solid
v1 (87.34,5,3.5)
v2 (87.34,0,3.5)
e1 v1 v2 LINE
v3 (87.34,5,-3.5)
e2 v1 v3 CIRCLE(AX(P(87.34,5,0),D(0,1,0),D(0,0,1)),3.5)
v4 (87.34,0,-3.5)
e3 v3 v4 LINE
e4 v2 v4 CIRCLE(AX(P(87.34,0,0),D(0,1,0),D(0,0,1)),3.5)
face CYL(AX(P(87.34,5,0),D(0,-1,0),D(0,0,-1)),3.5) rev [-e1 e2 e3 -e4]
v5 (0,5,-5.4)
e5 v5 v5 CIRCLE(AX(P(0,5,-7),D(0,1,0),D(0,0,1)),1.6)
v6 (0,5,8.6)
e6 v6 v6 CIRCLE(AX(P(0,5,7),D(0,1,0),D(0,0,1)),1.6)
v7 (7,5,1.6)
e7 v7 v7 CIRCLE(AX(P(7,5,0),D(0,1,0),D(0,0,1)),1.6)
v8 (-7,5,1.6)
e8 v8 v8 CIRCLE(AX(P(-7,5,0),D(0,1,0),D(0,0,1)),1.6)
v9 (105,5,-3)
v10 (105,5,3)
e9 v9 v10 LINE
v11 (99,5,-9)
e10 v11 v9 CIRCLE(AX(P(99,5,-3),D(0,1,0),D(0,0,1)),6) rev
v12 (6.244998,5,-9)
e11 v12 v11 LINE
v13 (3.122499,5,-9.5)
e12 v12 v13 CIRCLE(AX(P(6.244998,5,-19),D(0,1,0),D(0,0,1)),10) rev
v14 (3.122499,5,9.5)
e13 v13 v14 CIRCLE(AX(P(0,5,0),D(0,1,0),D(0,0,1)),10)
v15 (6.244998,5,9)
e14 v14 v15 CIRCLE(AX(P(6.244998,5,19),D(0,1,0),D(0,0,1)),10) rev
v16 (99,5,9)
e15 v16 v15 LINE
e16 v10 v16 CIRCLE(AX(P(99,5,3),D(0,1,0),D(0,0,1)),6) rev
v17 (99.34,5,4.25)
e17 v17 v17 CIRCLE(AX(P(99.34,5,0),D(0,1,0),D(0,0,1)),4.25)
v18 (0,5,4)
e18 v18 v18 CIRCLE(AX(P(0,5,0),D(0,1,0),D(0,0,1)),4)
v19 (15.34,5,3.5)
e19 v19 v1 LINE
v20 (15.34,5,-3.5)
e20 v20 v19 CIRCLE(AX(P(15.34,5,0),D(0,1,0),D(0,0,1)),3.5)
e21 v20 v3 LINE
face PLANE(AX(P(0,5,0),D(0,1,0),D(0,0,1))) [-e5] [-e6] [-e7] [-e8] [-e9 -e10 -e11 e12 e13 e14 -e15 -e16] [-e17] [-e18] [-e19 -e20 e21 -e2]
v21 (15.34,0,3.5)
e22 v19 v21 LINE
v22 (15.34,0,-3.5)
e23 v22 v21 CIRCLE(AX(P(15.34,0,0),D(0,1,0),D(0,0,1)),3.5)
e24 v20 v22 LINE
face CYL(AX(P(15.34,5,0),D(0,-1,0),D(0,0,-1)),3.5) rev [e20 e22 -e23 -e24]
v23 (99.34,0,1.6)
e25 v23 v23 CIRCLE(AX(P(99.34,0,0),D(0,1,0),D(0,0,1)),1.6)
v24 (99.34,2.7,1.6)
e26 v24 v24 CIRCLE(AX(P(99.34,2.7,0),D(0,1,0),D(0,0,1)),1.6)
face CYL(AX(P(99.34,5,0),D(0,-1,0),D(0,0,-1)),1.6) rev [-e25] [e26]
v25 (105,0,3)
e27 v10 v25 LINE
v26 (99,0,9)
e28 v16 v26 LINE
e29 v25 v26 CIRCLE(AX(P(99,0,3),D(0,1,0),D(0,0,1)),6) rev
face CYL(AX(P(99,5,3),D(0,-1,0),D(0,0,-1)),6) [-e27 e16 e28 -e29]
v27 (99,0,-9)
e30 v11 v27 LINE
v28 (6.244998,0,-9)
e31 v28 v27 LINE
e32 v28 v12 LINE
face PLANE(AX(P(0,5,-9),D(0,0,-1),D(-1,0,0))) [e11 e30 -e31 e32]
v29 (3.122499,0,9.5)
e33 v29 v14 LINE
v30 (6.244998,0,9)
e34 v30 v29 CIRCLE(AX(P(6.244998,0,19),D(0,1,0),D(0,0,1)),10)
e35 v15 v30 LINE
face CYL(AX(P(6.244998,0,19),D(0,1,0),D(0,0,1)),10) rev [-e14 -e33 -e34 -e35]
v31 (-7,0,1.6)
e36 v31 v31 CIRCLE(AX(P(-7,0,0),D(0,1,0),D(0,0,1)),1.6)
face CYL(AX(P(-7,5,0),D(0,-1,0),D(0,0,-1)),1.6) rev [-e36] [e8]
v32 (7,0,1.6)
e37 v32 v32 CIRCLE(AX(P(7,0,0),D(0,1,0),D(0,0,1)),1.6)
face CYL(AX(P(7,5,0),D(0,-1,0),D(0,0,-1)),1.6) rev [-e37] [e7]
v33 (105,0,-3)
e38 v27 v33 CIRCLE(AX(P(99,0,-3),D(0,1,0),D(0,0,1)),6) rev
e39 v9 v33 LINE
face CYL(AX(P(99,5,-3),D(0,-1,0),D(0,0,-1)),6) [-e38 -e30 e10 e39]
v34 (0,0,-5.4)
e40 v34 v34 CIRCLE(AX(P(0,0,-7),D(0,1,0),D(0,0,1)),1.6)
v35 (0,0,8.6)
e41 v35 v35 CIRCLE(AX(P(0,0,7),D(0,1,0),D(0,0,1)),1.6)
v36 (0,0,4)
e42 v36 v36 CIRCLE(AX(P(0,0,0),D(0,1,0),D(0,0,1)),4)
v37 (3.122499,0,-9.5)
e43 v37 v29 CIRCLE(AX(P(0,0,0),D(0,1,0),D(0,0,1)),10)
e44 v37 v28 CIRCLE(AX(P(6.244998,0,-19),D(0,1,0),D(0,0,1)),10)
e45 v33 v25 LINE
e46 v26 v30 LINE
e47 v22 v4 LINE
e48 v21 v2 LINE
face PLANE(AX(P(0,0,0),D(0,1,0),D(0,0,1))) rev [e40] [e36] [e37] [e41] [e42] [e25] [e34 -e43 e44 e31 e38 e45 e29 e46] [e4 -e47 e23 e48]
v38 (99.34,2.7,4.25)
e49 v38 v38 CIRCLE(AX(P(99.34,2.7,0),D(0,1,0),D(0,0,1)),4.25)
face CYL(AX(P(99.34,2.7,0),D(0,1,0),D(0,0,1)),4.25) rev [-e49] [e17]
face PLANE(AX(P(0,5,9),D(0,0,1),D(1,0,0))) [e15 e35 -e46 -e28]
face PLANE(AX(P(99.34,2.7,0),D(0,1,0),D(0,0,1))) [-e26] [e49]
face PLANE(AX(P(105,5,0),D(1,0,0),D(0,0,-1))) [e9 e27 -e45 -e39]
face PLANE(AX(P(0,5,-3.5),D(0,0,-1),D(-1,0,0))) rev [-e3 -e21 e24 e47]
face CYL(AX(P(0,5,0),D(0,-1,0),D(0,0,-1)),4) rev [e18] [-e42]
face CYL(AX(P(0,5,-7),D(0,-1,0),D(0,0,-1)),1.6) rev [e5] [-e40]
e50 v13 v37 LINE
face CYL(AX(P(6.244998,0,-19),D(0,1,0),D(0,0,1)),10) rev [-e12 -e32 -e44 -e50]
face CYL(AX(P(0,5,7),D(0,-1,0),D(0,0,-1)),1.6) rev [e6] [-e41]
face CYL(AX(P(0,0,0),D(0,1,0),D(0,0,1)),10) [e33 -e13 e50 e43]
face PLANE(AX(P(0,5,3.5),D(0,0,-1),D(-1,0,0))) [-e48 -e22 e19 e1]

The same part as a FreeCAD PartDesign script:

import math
import FreeCAD as App
import Part
import Sketcher

V = App.Vector


def edges_at(feature, points):
    """Names of the edges that pass closest to the given points."""
    edges = feature.Shape.Edges
    near = lambda p: min(range(len(edges)), key=lambda i: edges[i].distToShape(Part.Vertex(*p))[0])
    return sorted({f"Edge{near(p) + 1}" for p in points})

doc = App.newDocument("Part")
body = doc.addObject("PartDesign::Body", "Body")

# Sketch on XZ plane
sketch1 = doc.addObject("Sketcher::SketchObject", "Sketch")
body.addObject(sketch1)
sketch1.AttachmentSupport = (doc.XZ_Plane, [""])
sketch1.MapMode = "FlatFace"
sketch1.addGeometry([
    Part.LineSegment(V(99, -9, 0), V(0, -9, 0)),  # 0
    Part.ArcOfCircle(Part.Circle(V(0, 0, 0), V(0, 0, 1), 9), math.radians(90), math.radians(270)),  # 1
    Part.LineSegment(V(0, 9, 0), V(99, 9, 0)),  # 2
    Part.ArcOfCircle(Part.Circle(V(99, 3, 0), V(0, 0, 1), 6), math.radians(0), math.radians(90)),  # 3
    Part.LineSegment(V(105, 3, 0), V(105, -3, 0)),  # 4
    Part.ArcOfCircle(Part.Circle(V(99, -3, 0), V(0, 0, 1), 6), math.radians(-90), math.radians(0)),  # 5
    Part.LineSegment(V(87.34, 3.5, 0), V(15.34, 3.5, 0)),  # 6
    Part.ArcOfCircle(Part.Circle(V(15.34, 0, 0), V(0, 0, 1), 3.5), math.radians(90), math.radians(270)),  # 7
    Part.LineSegment(V(15.34, -3.5, 0), V(87.34, -3.5, 0)),  # 8
    Part.ArcOfCircle(Part.Circle(V(87.34, 0, 0), V(0, 0, 1), 3.5), math.radians(-90), math.radians(90)),  # 9
    Part.Circle(V(99.34, 0, 0), V(0, 0, 1), 1.6),  # 10
    Part.Circle(V(0, -7, 0), V(0, 0, 1), 1.6),  # 11
    Part.Circle(V(7, 0, 0), V(0, 0, 1), 1.6),  # 12
    Part.Circle(V(0, 7, 0), V(0, 0, 1), 1.6),  # 13
    Part.Circle(V(-7, 0, 0), V(0, 0, 1), 1.6),  # 14
    Part.Circle(V(0, 0, 0), V(0, 0, 1), 4),  # 15
], False)
sketch1.addConstraint([
    Sketcher.Constraint("Tangent", 0, 2, 1, 2),
    Sketcher.Constraint("Tangent", 1, 1, 2, 1),
    Sketcher.Constraint("Tangent", 2, 2, 3, 2),
    Sketcher.Constraint("Tangent", 3, 1, 4, 1),
    Sketcher.Constraint("Tangent", 4, 2, 5, 2),
    Sketcher.Constraint("Tangent", 5, 1, 0, 1),
    Sketcher.Constraint("Tangent", 6, 2, 7, 1),
    Sketcher.Constraint("Tangent", 7, 2, 8, 1),
    Sketcher.Constraint("Tangent", 8, 2, 9, 1),
    Sketcher.Constraint("Tangent", 9, 2, 6, 1),
    Sketcher.Constraint("Horizontal", 0),
    Sketcher.Constraint("Horizontal", 2),
    Sketcher.Constraint("Vertical", 4),
    Sketcher.Constraint("Horizontal", 6),
    Sketcher.Constraint("Horizontal", 8),
    Sketcher.Constraint("Coincident", 1, 3, -1, 1),
    Sketcher.Constraint("Coincident", 15, 3, -1, 1),
    Sketcher.Constraint("Equal", 3, 5),
    Sketcher.Constraint("Equal", 10, 11),
    Sketcher.Constraint("Equal", 11, 12),
    Sketcher.Constraint("Equal", 12, 13),
    Sketcher.Constraint("Equal", 13, 14),
    Sketcher.Constraint("Symmetric", 11, 3, 13, 3, -1, 1),
    Sketcher.Constraint("Symmetric", 12, 3, 14, 3, -1, 1),
    Sketcher.Constraint("PointOnObject", 7, 3, -1),
    Sketcher.Constraint("PointOnObject", 10, 3, -1),
    Sketcher.Constraint("PointOnObject", 11, 3, -2),
    Sketcher.Constraint("PointOnObject", 12, 3, -1),
    Sketcher.Constraint("Diameter", 15, 8.0),
    Sketcher.Constraint("Radius", 1, 9.0),
    Sketcher.Constraint("Radius", 3, 6.0),
    Sketcher.Constraint("Diameter", 10, 3.2),
    Sketcher.Constraint("Radius", 7, 3.5),
    Sketcher.Constraint("DistanceX", 0, 2, 0, 1, 99.0),
    Sketcher.Constraint("DistanceX", 6, 2, 6, 1, 72.0),
    Sketcher.Constraint("DistanceY", 11, 3, -1, 1, 7.0),
    Sketcher.Constraint("DistanceX", -1, 1, 12, 3, 7.0),
    Sketcher.Constraint("DistanceX", 9, 3, 10, 3, 12.0),
    Sketcher.Constraint("DistanceX", -1, 1, 7, 3, 15.34),
])
pad1 = doc.addObject("PartDesign::Pad", "Pad")
body.addObject(pad1)
pad1.Profile = sketch1
pad1.Length = 5
pad1.Reversed = True

# Sketch on XZ plane
sketch2 = doc.addObject("Sketcher::SketchObject", "Sketch001")
body.addObject(sketch2)
sketch2.AttachmentSupport = (doc.XZ_Plane, [""])
sketch2.MapMode = "FlatFace"
sketch2.AttachmentOffset = App.Placement(V(0, 0, -5), App.Rotation())
sketch2.addGeometry(Part.Circle(V(99.34, 0, 0), V(0, 0, 1), 4.25), False)
sketch2.addConstraint([
    Sketcher.Constraint("PointOnObject", 0, 3, -1),
    Sketcher.Constraint("Diameter", 0, 8.5),
    Sketcher.Constraint("DistanceX", -1, 1, 0, 3, 99.34),
])
pocket1 = doc.addObject("PartDesign::Pocket", "Pocket")
body.addObject(pocket1)
pocket1.Profile = sketch2
pocket1.Length = 2.3
pocket1.Reversed = True

# Sketch on XZ plane
sketch3 = doc.addObject("Sketcher::SketchObject", "Sketch002")
body.addObject(sketch3)
sketch3.AttachmentSupport = (doc.XZ_Plane, [""])
sketch3.MapMode = "FlatFace"
sketch3.addGeometry([
    Part.Circle(V(0, 0, 0), V(0, 0, 1), 10),
    Part.Circle(V(0, 0, 0), V(0, 0, 1), 9),
], False)
sketch3.addConstraint([
    Sketcher.Constraint("Coincident", 0, 3, -1, 1),
    Sketcher.Constraint("Coincident", 1, 3, -1, 1),
    Sketcher.Constraint("Diameter", 0, 20.0),
    Sketcher.Constraint("Diameter", 1, 18.0),
])
pad2 = doc.addObject("PartDesign::Pad", "Pad001")
body.addObject(pad2)
pad2.Profile = sketch3
pad2.Length = 5
pad2.Reversed = True
doc.recompute()

fillet = doc.addObject("PartDesign::Fillet", "Fillet")
body.addObject(fillet)
fillet.Base = (pad2, edges_at(pad2, [(4.359, 2.5, -9), (4.359, 2.5, 9)]))
fillet.Radius = 10

doc.recompute()
